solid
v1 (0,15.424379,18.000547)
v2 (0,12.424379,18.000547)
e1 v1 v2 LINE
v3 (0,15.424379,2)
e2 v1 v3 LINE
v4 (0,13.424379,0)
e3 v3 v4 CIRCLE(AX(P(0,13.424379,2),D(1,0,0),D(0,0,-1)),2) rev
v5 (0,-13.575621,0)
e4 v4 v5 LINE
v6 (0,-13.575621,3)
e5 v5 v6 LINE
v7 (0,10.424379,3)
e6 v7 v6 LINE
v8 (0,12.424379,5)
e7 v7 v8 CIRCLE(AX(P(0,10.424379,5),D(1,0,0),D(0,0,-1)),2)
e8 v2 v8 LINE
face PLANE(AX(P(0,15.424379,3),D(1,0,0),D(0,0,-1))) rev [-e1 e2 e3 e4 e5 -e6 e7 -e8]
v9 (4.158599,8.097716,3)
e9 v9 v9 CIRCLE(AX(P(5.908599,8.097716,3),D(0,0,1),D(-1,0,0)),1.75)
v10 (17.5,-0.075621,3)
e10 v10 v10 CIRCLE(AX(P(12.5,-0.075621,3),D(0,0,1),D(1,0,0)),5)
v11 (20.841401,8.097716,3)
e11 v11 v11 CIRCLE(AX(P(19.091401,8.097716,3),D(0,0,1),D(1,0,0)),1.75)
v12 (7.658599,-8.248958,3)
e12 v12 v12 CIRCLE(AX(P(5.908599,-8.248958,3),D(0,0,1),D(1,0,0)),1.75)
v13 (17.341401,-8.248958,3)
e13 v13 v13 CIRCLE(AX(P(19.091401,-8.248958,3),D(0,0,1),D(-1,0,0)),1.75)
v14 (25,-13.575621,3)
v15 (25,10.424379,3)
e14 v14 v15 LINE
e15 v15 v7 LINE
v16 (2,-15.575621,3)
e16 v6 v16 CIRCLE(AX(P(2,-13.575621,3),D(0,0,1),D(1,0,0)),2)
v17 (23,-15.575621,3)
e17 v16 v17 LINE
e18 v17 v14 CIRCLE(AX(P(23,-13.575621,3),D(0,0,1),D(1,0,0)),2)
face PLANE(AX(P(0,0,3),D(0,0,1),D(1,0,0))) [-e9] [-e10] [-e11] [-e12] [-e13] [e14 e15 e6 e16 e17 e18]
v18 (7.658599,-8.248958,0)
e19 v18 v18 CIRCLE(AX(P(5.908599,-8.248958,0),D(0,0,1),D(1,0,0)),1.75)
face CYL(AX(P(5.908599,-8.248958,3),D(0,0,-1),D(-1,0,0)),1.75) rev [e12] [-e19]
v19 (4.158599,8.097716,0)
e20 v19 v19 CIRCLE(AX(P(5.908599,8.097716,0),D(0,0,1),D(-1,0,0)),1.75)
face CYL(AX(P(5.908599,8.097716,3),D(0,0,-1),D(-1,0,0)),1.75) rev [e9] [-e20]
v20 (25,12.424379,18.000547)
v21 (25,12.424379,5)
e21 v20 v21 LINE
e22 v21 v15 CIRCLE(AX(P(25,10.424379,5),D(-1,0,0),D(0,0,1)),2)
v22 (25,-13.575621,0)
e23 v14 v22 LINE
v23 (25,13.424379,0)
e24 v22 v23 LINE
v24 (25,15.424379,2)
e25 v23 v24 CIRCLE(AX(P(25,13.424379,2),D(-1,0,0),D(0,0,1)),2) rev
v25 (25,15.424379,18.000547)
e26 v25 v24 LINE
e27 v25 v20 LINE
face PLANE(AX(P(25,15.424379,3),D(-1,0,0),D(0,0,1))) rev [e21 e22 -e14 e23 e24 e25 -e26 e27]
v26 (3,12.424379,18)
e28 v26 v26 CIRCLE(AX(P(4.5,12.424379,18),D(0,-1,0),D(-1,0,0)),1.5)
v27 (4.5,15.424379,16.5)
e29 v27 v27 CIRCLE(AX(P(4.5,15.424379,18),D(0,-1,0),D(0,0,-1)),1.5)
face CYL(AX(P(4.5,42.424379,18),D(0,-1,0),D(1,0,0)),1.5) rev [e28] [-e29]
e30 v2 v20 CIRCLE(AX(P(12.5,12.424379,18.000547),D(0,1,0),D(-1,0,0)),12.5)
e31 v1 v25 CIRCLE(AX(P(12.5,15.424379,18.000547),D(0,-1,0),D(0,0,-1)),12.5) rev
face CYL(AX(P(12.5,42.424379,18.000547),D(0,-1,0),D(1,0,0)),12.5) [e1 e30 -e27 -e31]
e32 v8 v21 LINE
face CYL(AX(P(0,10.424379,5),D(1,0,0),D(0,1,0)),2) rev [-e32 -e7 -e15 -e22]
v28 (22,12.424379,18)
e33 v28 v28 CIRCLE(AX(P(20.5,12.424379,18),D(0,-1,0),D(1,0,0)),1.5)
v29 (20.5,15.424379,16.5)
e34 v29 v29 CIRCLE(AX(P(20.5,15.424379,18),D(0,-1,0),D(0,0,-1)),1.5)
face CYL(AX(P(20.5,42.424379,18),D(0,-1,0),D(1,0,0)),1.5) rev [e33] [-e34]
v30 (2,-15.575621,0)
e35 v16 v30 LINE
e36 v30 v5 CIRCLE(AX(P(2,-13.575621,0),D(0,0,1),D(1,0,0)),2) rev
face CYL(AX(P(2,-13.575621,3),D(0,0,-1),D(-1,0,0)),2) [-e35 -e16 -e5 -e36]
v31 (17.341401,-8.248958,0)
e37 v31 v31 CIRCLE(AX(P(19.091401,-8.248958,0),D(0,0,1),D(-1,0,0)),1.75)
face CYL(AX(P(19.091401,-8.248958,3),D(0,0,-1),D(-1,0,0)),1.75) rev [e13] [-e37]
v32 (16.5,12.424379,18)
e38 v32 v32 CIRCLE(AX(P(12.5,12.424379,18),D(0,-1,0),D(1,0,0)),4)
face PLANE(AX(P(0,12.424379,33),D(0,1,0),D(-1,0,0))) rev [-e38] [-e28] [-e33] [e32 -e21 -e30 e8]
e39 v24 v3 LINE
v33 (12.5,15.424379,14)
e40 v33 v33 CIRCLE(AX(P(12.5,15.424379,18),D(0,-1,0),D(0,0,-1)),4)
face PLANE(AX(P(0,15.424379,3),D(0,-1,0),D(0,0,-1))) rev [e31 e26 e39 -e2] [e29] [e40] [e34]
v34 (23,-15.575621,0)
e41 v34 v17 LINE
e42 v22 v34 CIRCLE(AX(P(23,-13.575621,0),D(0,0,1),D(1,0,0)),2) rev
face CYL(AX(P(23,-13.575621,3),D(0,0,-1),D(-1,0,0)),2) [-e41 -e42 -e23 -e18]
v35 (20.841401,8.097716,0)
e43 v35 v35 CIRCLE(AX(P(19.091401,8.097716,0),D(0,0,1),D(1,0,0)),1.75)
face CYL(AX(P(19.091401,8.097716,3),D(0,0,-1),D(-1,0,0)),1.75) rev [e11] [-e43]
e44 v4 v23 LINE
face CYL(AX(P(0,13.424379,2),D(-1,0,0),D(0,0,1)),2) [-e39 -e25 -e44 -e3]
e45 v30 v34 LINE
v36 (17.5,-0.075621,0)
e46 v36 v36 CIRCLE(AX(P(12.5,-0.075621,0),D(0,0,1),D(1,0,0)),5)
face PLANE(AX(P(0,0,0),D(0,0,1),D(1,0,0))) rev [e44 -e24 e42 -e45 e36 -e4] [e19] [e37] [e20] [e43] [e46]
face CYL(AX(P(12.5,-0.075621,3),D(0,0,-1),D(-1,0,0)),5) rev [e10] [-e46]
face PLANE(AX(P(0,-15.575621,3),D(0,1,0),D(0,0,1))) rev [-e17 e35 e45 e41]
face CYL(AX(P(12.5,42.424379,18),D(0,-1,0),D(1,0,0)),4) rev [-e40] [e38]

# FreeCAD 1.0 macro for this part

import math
import FreeCAD as App
import Part
import Sketcher


def edges_at(feature, points):
    """Names of the edges that pass closest to the given points."""
    edges = feature.Shape.Edges
    near = lambda p: min(range(len(edges)), key=lambda i: edges[i].distToShape(Part.Vertex(*p))[0])
    return sorted({f"Edge{near(p) + 1}" for p in points})

doc = App.newDocument("Part")
body = doc.addObject("PartDesign::Body", "Body")

# Sketch on XY plane
sketch1 = body.newObject("Sketcher::SketchObject", "Sketch")
sketch1.AttachmentSupport = (doc.getObject("XY_Plane"), [""])
sketch1.MapMode = "FlatFace"
sketch1.addGeometry(Part.LineSegment(App.Vector(0, 15.424379, 0), App.Vector(0, -15.575621, 0)), False)
sketch1.addGeometry(Part.LineSegment(App.Vector(0, -15.575621, 0), App.Vector(25, -15.575621, 0)), False)
sketch1.addGeometry(Part.LineSegment(App.Vector(25, -15.575621, 0), App.Vector(25, 15.424379, 0)), False)
sketch1.addGeometry(Part.LineSegment(App.Vector(25, 15.424379, 0), App.Vector(0, 15.424379, 0)), False)
sketch1.addGeometry(Part.Circle(App.Vector(5.908599, -8.248958, 0), App.Vector(0, 0, 1), 1.75), False)
sketch1.addGeometry(Part.Circle(App.Vector(19.091401, -8.248958, 0), App.Vector(0, 0, 1), 1.75), False)
sketch1.addGeometry(Part.Circle(App.Vector(5.908599, 8.097716, 0), App.Vector(0, 0, 1), 1.75), False)
sketch1.addGeometry(Part.Circle(App.Vector(12.5, -0.075621, 0), App.Vector(0, 0, 1), 5), False)
sketch1.addGeometry(Part.Circle(App.Vector(19.091401, 8.097716, 0), App.Vector(0, 0, 1), 1.75), False)
sketch1.addConstraint(Sketcher.Constraint("Coincident", 0, 2, 1, 1))
sketch1.addConstraint(Sketcher.Constraint("Coincident", 1, 2, 2, 1))
sketch1.addConstraint(Sketcher.Constraint("Coincident", 2, 2, 3, 1))
sketch1.addConstraint(Sketcher.Constraint("Coincident", 3, 2, 0, 1))
sketch1.addConstraint(Sketcher.Constraint("Vertical", 0))
sketch1.addConstraint(Sketcher.Constraint("Horizontal", 1))
sketch1.addConstraint(Sketcher.Constraint("Vertical", 2))
sketch1.addConstraint(Sketcher.Constraint("Horizontal", 3))
sketch1.addConstraint(Sketcher.Constraint("Equal", 4, 5))
sketch1.addConstraint(Sketcher.Constraint("Equal", 5, 6))
sketch1.addConstraint(Sketcher.Constraint("Equal", 6, 8))
sketch1.addConstraint(Sketcher.Constraint("PointOnObject", 0, 2, -2))
sketch1.addConstraint(Sketcher.Constraint("Horizontal", 4, 3, 5, 3))
sketch1.addConstraint(Sketcher.Constraint("Horizontal", 6, 3, 8, 3))
sketch1.addConstraint(Sketcher.Constraint("Vertical", 4, 3, 6, 3))
sketch1.addConstraint(Sketcher.Constraint("Vertical", 5, 3, 8, 3))
sketch1.addConstraint(Sketcher.Constraint("Diameter", 7, 10.0))
sketch1.addConstraint(Sketcher.Constraint("Diameter", 4, 3.5))
sketch1.addConstraint(Sketcher.Constraint("DistanceX", 1, 1, 1, 2, 25.0))
sketch1.addConstraint(Sketcher.Constraint("DistanceY", 0, 2, 0, 1, 31.0))
sketch1.addConstraint(Sketcher.Constraint("DistanceX", -1, 1, 7, 3, 12.5))
sketch1.addConstraint(Sketcher.Constraint("DistanceY", 0, 2, 7, 3, 15.5))
sketch1.addConstraint(Sketcher.Constraint("DistanceX", -1, 1, 4, 3, 5.908599))
sketch1.addConstraint(Sketcher.Constraint("DistanceX", -1, 1, 5, 3, 19.091401))
sketch1.addConstraint(Sketcher.Constraint("DistanceY", 7, 3, -1, 1, 0.075621))
sketch1.addConstraint(Sketcher.Constraint("DistanceY", 4, 3, -1, 1, 8.248958))
sketch1.addConstraint(Sketcher.Constraint("DistanceY", -1, 1, 6, 3, 8.097716))
pad1 = body.newObject("PartDesign::Pad", "Pad")
pad1.Profile = sketch1
pad1.Length = 3

# Sketch on XY plane
sketch2 = body.newObject("Sketcher::SketchObject", "Sketch001")
sketch2.AttachmentSupport = (doc.getObject("XY_Plane"), [""])
sketch2.MapMode = "FlatFace"
sketch2.AttachmentOffset = App.Placement(App.Vector(0, 0, 3), App.Rotation())
sketch2.addGeometry(Part.LineSegment(App.Vector(0, 15.424379, 0), App.Vector(0, 12.424379, 0)), False)
sketch2.addGeometry(Part.LineSegment(App.Vector(0, 12.424379, 0), App.Vector(25, 12.424379, 0)), False)
sketch2.addGeometry(Part.LineSegment(App.Vector(25, 12.424379, 0), App.Vector(25, 15.424379, 0)), False)
sketch2.addGeometry(Part.LineSegment(App.Vector(25, 15.424379, 0), App.Vector(0, 15.424379, 0)), False)
sketch2.addConstraint(Sketcher.Constraint("Coincident", 0, 2, 1, 1))
sketch2.addConstraint(Sketcher.Constraint("Coincident", 1, 2, 2, 1))
sketch2.addConstraint(Sketcher.Constraint("Coincident", 2, 2, 3, 1))
sketch2.addConstraint(Sketcher.Constraint("Coincident", 3, 2, 0, 1))
sketch2.addConstraint(Sketcher.Constraint("Vertical", 0))
sketch2.addConstraint(Sketcher.Constraint("Horizontal", 1))
sketch2.addConstraint(Sketcher.Constraint("Vertical", 2))
sketch2.addConstraint(Sketcher.Constraint("Horizontal", 3))
sketch2.addConstraint(Sketcher.Constraint("PointOnObject", 0, 2, -2))
sketch2.addConstraint(Sketcher.Constraint("DistanceX", 1, 1, 1, 2, 25.0))
sketch2.addConstraint(Sketcher.Constraint("DistanceY", 0, 2, 0, 1, 3.0))
sketch2.addConstraint(Sketcher.Constraint("DistanceY", -1, 1, 0, 2, 12.424379))
pad2 = body.newObject("PartDesign::Pad", "Pad001")
pad2.Profile = sketch2
pad2.Length = 30

# Sketch on XZ plane
sketch3 = body.newObject("Sketcher::SketchObject", "Sketch002")
sketch3.AttachmentSupport = (doc.getObject("XZ_Plane"), [""])
sketch3.MapMode = "FlatFace"
sketch3.AttachmentOffset = App.Placement(App.Vector(0, 0, -12.424379), App.Rotation())
sketch3.addGeometry(Part.Circle(App.Vector(12.5, 18, 0), App.Vector(0, 0, 1), 4), False)
sketch3.addGeometry(Part.Circle(App.Vector(20.5, 18, 0), App.Vector(0, 0, 1), 1.5), False)
sketch3.addGeometry(Part.Circle(App.Vector(4.5, 18, 0), App.Vector(0, 0, 1), 1.5), False)
sketch3.addGeometry(Part.LineSegment(App.Vector(0, 33, 0), App.Vector(0, 18.000547, 0)), False)
sketch3.addGeometry(Part.ArcOfCircle(Part.Circle(App.Vector(12.5, 18.000547, 0), App.Vector(0, 0, 1), 12.5), math.radians(0), math.radians(180)), False)
sketch3.addGeometry(Part.LineSegment(App.Vector(25, 18.000547, 0), App.Vector(25, 33, 0)), False)
sketch3.addGeometry(Part.LineSegment(App.Vector(25, 33, 0), App.Vector(0, 33, 0)), False)
sketch3.addConstraint(Sketcher.Constraint("Tangent", 3, 2, 4, 2))
sketch3.addConstraint(Sketcher.Constraint("Tangent", 4, 1, 5, 1))
sketch3.addConstraint(Sketcher.Constraint("Coincident", 5, 2, 6, 1))
sketch3.addConstraint(Sketcher.Constraint("Coincident", 6, 2, 3, 1))
sketch3.addConstraint(Sketcher.Constraint("Vertical", 3))
sketch3.addConstraint(Sketcher.Constraint("Vertical", 5))
sketch3.addConstraint(Sketcher.Constraint("Horizontal", 6))
sketch3.addConstraint(Sketcher.Constraint("Equal", 1, 2))
sketch3.addConstraint(Sketcher.Constraint("PointOnObject", 3, 2, -2))
sketch3.addConstraint(Sketcher.Constraint("Horizontal", 0, 3, 1, 3))
sketch3.addConstraint(Sketcher.Constraint("Horizontal", 1, 3, 2, 3))
sketch3.addConstraint(Sketcher.Constraint("Vertical", 0, 3, 4, 3))
sketch3.addConstraint(Sketcher.Constraint("Diameter", 0, 8.0))
sketch3.addConstraint(Sketcher.Constraint("Diameter", 1, 3.0))
sketch3.addConstraint(Sketcher.Constraint("Radius", 4, 12.5))
sketch3.addConstraint(Sketcher.Constraint("DistanceY", -1, 1, 0, 3, 18.0))
sketch3.addConstraint(Sketcher.Constraint("DistanceY", -1, 1, 5, 2, 33.0))
sketch3.addConstraint(Sketcher.Constraint("DistanceX", 0, 3, 1, 3, 8.0))
sketch3.addConstraint(Sketcher.Constraint("DistanceX", 2, 3, 0, 3, 8.0))
sketch3.addConstraint(Sketcher.Constraint("DistanceY", 3, 2, 3, 1, 14.999453))
pocket1 = body.newObject("PartDesign::Pocket", "Pocket")
pocket1.Profile = sketch3
pocket1.Length = 30
doc.recompute()

fillet = body.newObject("PartDesign::Fillet", "Fillet")
fillet.Base = (pocket1, edges_at(pocket1, [
    (12.5, 12.424, 3),
    (12.5, 15.424, 0),
    (25, -15.576, 1.5),
    (0, -15.576, 1.5),
]))
fillet.Radius = 2

doc.recompute()
